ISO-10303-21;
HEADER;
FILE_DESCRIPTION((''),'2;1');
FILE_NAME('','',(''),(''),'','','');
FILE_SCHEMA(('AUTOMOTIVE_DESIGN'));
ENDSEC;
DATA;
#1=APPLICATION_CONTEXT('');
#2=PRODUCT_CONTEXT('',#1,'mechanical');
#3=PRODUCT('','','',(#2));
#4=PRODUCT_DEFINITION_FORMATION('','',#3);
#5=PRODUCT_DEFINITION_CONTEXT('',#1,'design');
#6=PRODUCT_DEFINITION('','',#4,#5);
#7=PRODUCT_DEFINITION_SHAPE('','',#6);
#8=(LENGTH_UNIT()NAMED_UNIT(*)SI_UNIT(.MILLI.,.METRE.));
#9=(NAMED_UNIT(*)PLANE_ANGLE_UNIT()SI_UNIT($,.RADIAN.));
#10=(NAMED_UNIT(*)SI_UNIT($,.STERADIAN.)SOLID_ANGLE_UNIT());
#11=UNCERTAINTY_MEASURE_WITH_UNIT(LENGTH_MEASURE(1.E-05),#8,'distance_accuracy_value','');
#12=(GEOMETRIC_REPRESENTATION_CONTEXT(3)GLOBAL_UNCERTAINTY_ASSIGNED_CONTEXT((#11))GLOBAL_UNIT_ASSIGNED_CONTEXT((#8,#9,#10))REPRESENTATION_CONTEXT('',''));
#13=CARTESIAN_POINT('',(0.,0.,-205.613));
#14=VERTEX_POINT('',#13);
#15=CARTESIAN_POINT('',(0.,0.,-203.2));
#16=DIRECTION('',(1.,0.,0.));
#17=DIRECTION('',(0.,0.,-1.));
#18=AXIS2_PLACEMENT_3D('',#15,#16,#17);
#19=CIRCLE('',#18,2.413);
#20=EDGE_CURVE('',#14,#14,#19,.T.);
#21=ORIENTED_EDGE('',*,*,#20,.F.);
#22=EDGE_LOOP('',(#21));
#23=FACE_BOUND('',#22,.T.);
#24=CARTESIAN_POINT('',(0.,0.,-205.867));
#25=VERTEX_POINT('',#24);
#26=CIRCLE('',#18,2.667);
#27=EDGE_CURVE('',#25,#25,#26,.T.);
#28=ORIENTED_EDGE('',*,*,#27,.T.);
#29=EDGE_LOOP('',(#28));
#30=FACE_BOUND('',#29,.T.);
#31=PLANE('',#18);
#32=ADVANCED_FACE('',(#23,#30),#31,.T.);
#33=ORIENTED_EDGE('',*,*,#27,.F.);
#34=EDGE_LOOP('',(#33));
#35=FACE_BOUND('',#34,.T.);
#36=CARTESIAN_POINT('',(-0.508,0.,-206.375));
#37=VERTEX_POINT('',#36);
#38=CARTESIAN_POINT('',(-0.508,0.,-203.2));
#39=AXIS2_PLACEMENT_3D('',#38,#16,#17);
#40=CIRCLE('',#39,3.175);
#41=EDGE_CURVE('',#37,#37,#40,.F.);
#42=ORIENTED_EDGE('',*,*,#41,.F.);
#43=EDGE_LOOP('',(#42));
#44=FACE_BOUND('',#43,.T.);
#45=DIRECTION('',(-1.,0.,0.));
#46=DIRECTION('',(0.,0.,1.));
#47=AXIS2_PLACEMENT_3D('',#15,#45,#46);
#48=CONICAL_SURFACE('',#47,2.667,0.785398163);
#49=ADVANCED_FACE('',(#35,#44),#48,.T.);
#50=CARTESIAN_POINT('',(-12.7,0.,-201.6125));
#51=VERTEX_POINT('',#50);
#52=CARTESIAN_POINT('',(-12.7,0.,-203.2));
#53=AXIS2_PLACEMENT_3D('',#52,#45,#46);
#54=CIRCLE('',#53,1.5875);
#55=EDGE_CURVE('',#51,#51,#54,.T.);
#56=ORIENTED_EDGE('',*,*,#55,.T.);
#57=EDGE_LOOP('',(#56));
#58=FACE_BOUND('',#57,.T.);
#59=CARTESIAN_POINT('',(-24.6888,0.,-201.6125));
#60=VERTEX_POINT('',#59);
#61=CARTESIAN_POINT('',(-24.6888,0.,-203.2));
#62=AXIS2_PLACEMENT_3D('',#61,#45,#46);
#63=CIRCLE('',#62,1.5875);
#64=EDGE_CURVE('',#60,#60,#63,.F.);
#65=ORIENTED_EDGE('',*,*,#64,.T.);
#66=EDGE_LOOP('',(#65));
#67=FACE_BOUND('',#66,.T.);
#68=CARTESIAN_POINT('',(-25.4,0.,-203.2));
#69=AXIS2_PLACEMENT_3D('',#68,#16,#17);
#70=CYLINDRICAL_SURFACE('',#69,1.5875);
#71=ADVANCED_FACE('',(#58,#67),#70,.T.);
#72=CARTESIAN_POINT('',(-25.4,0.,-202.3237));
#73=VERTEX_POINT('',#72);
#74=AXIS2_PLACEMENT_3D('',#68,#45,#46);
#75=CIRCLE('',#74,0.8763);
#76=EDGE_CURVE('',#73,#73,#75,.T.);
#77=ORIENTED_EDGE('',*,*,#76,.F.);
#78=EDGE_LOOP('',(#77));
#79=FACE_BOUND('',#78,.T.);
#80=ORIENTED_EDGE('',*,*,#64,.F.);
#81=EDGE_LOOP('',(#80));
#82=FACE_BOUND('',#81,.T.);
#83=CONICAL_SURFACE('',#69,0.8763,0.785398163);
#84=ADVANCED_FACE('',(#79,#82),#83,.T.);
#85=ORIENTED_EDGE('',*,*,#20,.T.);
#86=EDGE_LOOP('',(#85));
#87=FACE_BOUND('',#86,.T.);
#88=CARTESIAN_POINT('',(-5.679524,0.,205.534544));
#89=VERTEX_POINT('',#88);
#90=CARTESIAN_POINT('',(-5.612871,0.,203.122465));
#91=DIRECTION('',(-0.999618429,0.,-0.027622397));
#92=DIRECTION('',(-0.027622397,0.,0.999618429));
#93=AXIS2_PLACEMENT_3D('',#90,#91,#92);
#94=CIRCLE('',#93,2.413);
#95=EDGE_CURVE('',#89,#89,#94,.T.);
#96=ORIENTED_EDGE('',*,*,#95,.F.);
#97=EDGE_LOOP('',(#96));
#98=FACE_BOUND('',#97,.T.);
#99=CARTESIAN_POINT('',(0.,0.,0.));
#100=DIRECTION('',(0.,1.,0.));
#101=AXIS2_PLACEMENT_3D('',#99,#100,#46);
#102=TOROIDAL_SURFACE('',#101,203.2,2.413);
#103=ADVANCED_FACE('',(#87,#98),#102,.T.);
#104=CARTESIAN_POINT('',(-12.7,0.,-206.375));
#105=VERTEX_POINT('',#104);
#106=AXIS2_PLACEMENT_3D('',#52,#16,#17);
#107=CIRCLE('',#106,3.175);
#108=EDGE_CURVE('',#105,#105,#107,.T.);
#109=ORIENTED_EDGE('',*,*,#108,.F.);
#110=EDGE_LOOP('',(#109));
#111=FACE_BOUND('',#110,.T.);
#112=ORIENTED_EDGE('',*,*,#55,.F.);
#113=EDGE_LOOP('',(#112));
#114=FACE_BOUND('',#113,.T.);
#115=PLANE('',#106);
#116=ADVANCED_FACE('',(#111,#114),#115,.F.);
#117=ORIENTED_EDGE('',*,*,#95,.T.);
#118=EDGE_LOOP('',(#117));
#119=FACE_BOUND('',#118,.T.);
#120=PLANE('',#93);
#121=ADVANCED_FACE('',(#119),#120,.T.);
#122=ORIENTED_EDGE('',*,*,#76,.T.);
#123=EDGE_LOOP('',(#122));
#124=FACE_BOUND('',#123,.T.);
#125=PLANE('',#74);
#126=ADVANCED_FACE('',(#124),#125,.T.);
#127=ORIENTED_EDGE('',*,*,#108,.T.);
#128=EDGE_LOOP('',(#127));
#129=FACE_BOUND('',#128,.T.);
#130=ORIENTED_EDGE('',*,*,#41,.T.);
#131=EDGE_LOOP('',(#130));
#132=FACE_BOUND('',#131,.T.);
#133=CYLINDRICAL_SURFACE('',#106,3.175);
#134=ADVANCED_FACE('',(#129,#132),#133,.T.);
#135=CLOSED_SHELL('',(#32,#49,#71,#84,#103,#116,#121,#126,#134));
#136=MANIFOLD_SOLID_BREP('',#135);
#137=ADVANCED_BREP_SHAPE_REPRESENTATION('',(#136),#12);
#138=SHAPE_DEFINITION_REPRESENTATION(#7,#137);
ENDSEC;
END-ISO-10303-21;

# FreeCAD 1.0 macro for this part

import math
import FreeCAD as App
import Part
import Sketcher
Q = App.Units.Quantity


def edges_at(feature, points):
    """Names of the edges that pass closest to the given points."""
    edges = feature.Shape.Edges
    near = lambda p: min(range(len(edges)), key=lambda i: edges[i].distToShape(Part.Vertex(*p))[0])
    return sorted({f"Edge{near(p) + 1}" for p in points})

doc = App.newDocument("Part")
body = doc.addObject("PartDesign::Body", "Body")

sketch1 = body.newObject("Sketcher::SketchObject", "Sketch")
sketch1.AttachmentSupport = (doc.getObject("YZ_Plane"), [""])
sketch1.MapMode = "FlatFace"
sketch1.addGeometry(Part.Circle(App.Vector(0, -203.2, 0), App.Vector(0, 0, 1), 2.4), False)
sketch1.addConstraint(Sketcher.Constraint("PointOnObject", 0, 3, -2))
sketch1.addConstraint(Sketcher.Constraint("Diameter", 0, Q("0.19 in")))
sketch1.addConstraint(Sketcher.Constraint("DistanceY", 0, 3, -1, 1, Q("8 in")))

sketch2 = body.newObject("Sketcher::SketchObject", "Sketch001")
sketch2.AttachmentSupport = (doc.getObject("XZ_Plane"), [""])
sketch2.MapMode = "FlatFace"
sketch2.addGeometry(Part.ArcOfCircle(Part.Circle(App.Vector(0, 0, 0), App.Vector(0, 0, 1), 203), math.radians(-90), math.radians(92)), False)
sketch2.addConstraint(Sketcher.Constraint("Coincident", 0, 3, -1, 1))
sketch2.addConstraint(Sketcher.Constraint("PointOnObject", 0, 1, -2))
sketch2.addConstraint(Sketcher.Constraint("Radius", 0, Q("8 in")))
sketch2.addConstraint(Sketcher.Constraint("DistanceX", 0, 2, -1, 1, Q("5.612871 mm")))
doc.recompute()

additivepipe = body.newObject("PartDesign::AdditivePipe", "AdditivePipe")
additivepipe.Profile = sketch1
additivepipe.Spine = (sketch2, ["Edge1"])

sketch3 = body.newObject("Sketcher::SketchObject", "Sketch002")
sketch3.AttachmentSupport = (doc.getObject("YZ_Plane"), [""])
sketch3.MapMode = "FlatFace"
sketch3.addGeometry(Part.Circle(App.Vector(0, -203.2, 0), App.Vector(0, 0, 1), 3.2), False)
sketch3.addConstraint(Sketcher.Constraint("PointOnObject", 0, 3, -2))
sketch3.addConstraint(Sketcher.Constraint("Diameter", 0, Q("0.25 in")))
sketch3.addConstraint(Sketcher.Constraint("DistanceY", 0, 3, -1, 1, Q("8 in")))
pad1 = body.newObject("PartDesign::Pad", "Pad")
pad1.Profile = sketch3
pad1.Length = Q("0.5 in")
pad1.Reversed = True
doc.recompute()

chamfer = body.newObject("PartDesign::Chamfer", "Chamfer")
chamfer.Base = (pad1, edges_at(pad1, [(0, 0, -200.025)]))
chamfer.Size = Q("0.02 in")

sketch4 = body.newObject("Sketcher::SketchObject", "Sketch003")
sketch4.AttachmentSupport = (doc.getObject("YZ_Plane"), [""])
sketch4.MapMode = "FlatFace"
sketch4.AttachmentOffset = App.Placement(App.Vector(0, 0, -0.5 * 25.4), App.Rotation())
sketch4.addGeometry(Part.Circle(App.Vector(0, -203.2, 0), App.Vector(0, 0, 1), 1.6), False)
sketch4.addConstraint(Sketcher.Constraint("PointOnObject", 0, 3, -2))
sketch4.addConstraint(Sketcher.Constraint("Diameter", 0, Q("0.125 in")))
sketch4.addConstraint(Sketcher.Constraint("DistanceY", 0, 3, -1, 1, Q("8 in")))
pad2 = body.newObject("PartDesign::Pad", "Pad001")
pad2.Profile = sketch4
pad2.Length = Q("0.5 in")
pad2.Reversed = True
doc.recompute()

chamfer2 = body.newObject("PartDesign::Chamfer", "Chamfer001")
chamfer2.Base = (pad2, edges_at(pad2, [(-25.4, 0, -204.787)]))
chamfer2.Size = Q("0.028 in")

doc.recompute()
